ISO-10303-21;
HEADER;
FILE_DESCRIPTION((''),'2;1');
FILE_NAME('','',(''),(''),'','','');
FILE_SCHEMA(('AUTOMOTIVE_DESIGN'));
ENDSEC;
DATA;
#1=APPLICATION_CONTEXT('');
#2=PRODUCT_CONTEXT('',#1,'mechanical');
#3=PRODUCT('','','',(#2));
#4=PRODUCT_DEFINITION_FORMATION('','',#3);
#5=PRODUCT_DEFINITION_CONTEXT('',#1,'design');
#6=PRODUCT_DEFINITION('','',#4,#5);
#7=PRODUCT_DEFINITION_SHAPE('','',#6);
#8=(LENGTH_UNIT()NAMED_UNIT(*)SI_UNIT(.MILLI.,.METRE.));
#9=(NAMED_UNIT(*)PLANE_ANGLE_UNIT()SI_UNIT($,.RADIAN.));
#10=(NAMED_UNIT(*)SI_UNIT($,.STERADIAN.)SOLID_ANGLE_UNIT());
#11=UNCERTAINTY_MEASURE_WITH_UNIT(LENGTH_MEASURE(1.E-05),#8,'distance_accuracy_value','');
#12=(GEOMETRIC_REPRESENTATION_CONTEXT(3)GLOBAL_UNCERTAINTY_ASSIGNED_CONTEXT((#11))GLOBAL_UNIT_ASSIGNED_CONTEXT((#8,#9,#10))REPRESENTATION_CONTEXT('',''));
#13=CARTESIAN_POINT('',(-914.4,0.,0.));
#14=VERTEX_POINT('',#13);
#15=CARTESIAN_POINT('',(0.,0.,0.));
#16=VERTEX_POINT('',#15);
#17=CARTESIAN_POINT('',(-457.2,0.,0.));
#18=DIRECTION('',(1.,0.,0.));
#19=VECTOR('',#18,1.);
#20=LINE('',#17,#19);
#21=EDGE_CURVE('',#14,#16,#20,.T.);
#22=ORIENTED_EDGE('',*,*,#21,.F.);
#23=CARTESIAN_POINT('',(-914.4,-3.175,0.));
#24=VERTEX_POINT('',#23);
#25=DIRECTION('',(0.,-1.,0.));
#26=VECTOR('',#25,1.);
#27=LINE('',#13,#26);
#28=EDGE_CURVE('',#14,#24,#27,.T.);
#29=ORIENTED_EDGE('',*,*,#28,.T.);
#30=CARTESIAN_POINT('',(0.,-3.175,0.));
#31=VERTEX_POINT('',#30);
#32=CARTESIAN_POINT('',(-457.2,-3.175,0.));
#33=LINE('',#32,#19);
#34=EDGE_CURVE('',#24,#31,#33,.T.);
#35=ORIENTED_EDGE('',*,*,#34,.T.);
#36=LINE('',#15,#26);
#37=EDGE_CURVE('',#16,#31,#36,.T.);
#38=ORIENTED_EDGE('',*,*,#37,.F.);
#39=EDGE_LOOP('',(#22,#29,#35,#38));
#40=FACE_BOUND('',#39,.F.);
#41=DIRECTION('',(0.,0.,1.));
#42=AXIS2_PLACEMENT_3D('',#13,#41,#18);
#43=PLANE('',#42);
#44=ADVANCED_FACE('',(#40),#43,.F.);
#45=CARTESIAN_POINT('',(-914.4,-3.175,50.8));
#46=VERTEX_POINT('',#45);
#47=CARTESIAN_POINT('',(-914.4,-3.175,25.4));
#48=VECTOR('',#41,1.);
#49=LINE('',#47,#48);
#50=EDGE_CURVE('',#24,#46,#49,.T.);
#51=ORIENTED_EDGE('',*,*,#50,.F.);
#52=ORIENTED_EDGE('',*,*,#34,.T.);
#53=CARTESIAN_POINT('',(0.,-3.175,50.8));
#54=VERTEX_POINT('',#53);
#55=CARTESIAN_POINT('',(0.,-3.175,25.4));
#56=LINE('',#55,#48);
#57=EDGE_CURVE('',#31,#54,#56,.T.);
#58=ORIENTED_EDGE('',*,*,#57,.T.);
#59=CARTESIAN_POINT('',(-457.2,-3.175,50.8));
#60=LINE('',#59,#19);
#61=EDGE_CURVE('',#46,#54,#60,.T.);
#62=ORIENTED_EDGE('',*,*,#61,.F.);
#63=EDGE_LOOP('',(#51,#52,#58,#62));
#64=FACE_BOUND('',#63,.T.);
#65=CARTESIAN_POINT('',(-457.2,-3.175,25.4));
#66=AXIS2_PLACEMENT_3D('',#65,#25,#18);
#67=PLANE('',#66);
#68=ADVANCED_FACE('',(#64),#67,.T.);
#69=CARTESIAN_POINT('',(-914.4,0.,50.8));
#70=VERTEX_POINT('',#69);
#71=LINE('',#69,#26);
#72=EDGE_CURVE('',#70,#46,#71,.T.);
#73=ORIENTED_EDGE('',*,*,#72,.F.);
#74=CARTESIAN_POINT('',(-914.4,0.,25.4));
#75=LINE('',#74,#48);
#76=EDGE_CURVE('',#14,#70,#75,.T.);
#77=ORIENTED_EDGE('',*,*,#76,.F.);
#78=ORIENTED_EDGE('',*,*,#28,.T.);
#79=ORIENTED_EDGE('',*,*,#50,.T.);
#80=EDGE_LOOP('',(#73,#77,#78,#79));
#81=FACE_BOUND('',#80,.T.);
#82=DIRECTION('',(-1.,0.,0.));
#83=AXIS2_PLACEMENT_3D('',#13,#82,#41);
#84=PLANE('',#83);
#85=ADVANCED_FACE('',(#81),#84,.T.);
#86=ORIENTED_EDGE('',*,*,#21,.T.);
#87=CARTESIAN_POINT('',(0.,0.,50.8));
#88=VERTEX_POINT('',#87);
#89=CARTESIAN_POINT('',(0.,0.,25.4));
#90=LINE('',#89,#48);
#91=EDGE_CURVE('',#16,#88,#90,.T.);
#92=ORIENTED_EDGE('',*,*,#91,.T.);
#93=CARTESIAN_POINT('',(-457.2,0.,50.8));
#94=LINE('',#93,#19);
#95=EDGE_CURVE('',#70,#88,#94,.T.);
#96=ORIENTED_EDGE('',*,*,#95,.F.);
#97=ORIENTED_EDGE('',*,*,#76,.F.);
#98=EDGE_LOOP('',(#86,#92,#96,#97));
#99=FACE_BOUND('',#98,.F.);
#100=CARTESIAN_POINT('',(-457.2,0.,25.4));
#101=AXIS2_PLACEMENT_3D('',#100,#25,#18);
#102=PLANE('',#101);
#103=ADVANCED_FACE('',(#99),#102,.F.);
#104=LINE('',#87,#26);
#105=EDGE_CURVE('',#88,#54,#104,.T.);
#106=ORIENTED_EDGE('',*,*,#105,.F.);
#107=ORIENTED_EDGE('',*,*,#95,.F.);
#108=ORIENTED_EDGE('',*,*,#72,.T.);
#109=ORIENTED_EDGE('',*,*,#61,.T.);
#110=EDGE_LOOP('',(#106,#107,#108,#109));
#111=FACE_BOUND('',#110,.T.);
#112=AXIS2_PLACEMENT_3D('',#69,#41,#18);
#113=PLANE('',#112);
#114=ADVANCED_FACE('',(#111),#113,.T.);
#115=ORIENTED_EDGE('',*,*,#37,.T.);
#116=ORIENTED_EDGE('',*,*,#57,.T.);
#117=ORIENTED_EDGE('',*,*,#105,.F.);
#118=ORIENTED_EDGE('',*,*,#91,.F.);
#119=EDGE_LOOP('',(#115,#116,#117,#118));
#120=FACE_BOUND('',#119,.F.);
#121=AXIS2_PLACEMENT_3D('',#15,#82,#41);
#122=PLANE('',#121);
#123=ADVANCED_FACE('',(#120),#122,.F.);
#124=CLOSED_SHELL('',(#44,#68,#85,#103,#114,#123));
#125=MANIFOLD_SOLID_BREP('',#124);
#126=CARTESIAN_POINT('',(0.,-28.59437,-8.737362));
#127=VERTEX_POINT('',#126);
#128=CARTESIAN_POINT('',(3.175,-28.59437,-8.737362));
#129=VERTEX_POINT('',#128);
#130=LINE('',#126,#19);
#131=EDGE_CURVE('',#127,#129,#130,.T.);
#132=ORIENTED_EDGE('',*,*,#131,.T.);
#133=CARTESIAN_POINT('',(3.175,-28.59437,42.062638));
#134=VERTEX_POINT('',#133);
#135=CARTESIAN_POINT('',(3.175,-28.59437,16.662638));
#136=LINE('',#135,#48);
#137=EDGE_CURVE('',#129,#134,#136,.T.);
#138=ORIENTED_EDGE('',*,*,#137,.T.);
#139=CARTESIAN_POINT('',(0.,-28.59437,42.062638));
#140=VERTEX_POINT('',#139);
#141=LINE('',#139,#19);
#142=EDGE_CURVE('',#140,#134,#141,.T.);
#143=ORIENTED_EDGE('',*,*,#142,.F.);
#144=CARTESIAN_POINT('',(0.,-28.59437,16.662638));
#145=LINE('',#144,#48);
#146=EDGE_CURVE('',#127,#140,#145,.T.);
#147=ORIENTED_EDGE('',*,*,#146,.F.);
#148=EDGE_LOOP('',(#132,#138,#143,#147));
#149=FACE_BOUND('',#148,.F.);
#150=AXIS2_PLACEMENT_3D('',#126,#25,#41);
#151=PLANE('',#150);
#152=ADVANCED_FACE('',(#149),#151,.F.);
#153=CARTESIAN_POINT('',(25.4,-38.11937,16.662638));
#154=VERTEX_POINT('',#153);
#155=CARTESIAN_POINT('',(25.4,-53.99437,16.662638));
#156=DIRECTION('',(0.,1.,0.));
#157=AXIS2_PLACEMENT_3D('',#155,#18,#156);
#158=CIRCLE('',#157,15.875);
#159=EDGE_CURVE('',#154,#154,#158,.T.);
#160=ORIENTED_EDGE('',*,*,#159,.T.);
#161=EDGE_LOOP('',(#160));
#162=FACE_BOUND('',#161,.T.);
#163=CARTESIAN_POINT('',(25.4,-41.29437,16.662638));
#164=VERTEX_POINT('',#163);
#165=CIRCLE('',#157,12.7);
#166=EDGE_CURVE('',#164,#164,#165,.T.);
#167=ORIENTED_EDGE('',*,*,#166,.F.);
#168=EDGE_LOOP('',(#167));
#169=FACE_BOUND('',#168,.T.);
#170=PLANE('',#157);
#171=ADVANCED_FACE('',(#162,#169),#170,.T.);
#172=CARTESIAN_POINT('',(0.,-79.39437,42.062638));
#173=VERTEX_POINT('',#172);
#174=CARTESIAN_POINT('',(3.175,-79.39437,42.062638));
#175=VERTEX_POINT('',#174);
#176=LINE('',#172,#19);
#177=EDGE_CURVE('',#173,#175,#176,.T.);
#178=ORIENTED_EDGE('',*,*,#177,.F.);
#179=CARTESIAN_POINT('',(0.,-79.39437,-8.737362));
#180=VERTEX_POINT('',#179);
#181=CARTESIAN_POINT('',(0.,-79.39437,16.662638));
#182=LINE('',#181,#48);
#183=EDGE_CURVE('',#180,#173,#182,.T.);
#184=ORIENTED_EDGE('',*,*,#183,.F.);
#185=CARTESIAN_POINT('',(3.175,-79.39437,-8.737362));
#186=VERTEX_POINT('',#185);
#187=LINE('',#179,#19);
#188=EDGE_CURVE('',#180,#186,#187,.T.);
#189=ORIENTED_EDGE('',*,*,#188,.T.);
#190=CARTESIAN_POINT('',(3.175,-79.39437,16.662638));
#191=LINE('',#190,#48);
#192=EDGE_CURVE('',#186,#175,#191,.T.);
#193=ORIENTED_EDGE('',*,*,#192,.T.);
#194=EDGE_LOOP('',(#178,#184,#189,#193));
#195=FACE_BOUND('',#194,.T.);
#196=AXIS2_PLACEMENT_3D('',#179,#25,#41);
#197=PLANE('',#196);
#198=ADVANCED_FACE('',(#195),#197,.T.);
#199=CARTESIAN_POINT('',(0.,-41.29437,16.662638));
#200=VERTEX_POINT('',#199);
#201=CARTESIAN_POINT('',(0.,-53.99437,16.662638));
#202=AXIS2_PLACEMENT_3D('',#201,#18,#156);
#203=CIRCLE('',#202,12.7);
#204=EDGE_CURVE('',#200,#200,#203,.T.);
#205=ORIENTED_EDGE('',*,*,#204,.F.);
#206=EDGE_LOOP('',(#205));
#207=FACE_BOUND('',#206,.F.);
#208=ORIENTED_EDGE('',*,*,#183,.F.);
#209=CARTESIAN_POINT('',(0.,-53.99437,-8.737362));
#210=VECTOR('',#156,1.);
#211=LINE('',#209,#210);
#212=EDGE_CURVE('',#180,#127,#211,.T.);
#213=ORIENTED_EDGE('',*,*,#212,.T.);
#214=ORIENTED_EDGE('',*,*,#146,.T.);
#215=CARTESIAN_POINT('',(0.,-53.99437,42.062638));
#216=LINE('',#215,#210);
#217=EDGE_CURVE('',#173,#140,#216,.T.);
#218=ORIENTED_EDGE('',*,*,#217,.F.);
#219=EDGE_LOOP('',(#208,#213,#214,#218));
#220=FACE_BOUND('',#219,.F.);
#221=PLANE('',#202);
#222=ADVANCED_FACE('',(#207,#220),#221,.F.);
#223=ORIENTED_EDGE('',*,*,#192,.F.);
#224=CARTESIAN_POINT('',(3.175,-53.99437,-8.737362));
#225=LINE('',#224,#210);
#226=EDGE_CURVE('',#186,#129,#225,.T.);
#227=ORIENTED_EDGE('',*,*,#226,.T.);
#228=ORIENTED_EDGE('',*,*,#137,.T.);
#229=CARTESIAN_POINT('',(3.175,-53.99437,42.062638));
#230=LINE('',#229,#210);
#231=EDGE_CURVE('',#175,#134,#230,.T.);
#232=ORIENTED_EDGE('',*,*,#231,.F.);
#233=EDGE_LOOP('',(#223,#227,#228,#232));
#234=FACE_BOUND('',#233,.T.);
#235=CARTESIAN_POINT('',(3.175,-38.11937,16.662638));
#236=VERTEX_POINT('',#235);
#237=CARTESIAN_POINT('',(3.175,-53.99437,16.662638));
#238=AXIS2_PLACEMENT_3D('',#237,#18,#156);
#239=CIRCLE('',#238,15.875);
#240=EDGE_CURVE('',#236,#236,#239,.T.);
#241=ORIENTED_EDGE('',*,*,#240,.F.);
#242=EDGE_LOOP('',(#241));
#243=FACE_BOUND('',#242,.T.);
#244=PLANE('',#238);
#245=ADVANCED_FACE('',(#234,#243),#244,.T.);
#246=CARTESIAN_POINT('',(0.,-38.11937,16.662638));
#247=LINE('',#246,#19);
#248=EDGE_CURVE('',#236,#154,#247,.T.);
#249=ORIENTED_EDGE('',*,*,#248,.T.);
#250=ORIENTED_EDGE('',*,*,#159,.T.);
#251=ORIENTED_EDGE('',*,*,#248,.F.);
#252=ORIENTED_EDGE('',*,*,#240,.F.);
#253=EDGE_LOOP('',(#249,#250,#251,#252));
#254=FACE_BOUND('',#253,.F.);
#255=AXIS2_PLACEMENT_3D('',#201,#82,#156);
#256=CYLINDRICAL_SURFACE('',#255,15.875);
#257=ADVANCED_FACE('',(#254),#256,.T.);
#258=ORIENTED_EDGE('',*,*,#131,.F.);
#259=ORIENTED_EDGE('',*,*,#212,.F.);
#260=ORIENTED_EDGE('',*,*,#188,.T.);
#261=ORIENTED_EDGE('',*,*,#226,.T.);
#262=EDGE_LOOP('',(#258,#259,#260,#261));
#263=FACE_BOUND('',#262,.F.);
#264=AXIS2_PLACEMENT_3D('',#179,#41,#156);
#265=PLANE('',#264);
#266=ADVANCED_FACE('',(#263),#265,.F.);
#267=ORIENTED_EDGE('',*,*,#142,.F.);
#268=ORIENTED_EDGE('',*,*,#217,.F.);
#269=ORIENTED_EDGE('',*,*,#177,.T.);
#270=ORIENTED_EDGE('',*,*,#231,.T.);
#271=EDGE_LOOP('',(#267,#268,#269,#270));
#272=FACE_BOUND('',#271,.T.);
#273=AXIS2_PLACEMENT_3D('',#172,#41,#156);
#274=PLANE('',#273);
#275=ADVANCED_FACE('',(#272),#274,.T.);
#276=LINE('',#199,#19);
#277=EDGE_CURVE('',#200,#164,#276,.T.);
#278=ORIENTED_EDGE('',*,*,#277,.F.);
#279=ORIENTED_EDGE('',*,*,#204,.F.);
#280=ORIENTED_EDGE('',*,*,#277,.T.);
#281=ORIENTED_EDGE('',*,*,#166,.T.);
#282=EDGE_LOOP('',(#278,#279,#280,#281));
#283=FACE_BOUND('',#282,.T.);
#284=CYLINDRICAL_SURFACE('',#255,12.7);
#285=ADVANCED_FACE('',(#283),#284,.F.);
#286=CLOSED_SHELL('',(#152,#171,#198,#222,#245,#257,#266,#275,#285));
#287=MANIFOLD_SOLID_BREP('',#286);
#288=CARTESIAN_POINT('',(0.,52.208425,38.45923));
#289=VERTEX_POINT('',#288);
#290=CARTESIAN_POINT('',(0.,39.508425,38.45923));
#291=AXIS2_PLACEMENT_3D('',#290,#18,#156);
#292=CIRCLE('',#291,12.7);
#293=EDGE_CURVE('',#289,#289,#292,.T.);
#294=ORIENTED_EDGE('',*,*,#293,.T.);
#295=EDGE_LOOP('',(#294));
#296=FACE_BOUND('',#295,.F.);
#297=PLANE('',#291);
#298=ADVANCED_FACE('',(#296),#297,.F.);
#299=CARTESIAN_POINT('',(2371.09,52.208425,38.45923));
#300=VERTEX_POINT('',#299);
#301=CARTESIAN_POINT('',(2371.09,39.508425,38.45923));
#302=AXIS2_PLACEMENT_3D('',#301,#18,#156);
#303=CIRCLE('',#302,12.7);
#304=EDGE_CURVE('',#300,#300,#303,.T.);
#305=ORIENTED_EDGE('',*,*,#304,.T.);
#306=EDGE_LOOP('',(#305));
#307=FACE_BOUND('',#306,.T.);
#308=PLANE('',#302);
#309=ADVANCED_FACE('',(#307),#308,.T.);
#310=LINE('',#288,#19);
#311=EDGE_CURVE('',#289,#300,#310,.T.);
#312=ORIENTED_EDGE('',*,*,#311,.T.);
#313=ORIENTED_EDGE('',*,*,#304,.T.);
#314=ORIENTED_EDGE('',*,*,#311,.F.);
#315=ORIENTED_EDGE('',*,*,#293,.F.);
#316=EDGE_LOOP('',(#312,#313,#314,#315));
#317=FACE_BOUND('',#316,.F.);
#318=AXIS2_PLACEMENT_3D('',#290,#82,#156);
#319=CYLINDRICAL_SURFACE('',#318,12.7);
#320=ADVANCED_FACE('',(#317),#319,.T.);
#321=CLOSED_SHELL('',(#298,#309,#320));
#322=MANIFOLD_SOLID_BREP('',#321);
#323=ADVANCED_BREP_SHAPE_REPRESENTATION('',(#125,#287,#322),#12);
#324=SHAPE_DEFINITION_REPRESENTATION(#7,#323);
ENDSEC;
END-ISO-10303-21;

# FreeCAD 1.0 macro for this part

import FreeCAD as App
import Part
import Sketcher
from FreeCAD import Vector
Q = App.Units.Quantity

doc = App.newDocument("Part")
body = doc.addObject("PartDesign::Body", "Body")

# Sketch on XZ plane
sketch1 = doc.addObject("Sketcher::SketchObject", "Sketch")
body.addObject(sketch1)
sketch1.AttachmentSupport = (doc.XZ_Plane, [""])
sketch1.MapMode = "FlatFace"
sketch1.addGeometry([
    Part.LineSegment(Vector(-914, 51, 0), Vector(-914, 0, 0)),
    Part.LineSegment(Vector(-914, 0, 0), Vector(0, 0, 0)),
    Part.LineSegment(Vector(0, 0, 0), Vector(0, 51, 0)),
    Part.LineSegment(Vector(0, 51, 0), Vector(-914, 51, 0)),
], False)
sketch1.addConstraint([
    Sketcher.Constraint("Coincident", 0, 2, 1, 1),
    Sketcher.Constraint("Coincident", 1, 2, 2, 1),
    Sketcher.Constraint("Coincident", 2, 2, 3, 1),
    Sketcher.Constraint("Coincident", 3, 2, 0, 1),
    Sketcher.Constraint("Vertical", 0),
    Sketcher.Constraint("Horizontal", 1),
    Sketcher.Constraint("Vertical", 2),
    Sketcher.Constraint("Horizontal", 3),
    Sketcher.Constraint("Coincident", 1, 2, -1, 1),
    Sketcher.Constraint("DistanceX", 1, 1, 1, 2, Q("36 in")),
    Sketcher.Constraint("DistanceY", 0, 2, 0, 1, Q("2 in")),
])
pad1 = doc.addObject("PartDesign::Pad", "Pad")
body.addObject(pad1)
pad1.Profile = sketch1
pad1.Length = Q("0.125 in")
body2 = doc.addObject("PartDesign::Body", "Body001")

# Sketch on YZ plane
sketch2 = doc.addObject("Sketcher::SketchObject", "Sketch001")
body2.addObject(sketch2)
sketch2.AttachmentSupport = (doc.getObject("YZ_Plane001"), [""])
sketch2.MapMode = "FlatFace"
sketch2.addGeometry([
    Part.LineSegment(Vector(-79, 42, 0), Vector(-79, -9, 0)),  # 0
    Part.LineSegment(Vector(-79, -9, 0), Vector(-29, -9, 0)),  # 1
    Part.LineSegment(Vector(-29, -9, 0), Vector(-29, 42, 0)),  # 2
    Part.LineSegment(Vector(-29, 42, 0), Vector(-79, 42, 0)),  # 3
    Part.Circle(Vector(-54, 17, 0), Vector(0, 0, 1), 16),  # 4
], False)
sketch2.addConstraint([
    Sketcher.Constraint("Coincident", 0, 2, 1, 1),
    Sketcher.Constraint("Coincident", 1, 2, 2, 1),
    Sketcher.Constraint("Coincident", 2, 2, 3, 1),
    Sketcher.Constraint("Coincident", 3, 2, 0, 1),
    Sketcher.Constraint("Vertical", 0),
    Sketcher.Constraint("Horizontal", 1),
    Sketcher.Constraint("Vertical", 2),
    Sketcher.Constraint("Horizontal", 3),
    Sketcher.Constraint("Equal", 3, 0),
    Sketcher.Constraint("Diameter", 4, Q("1.25 in")),
    Sketcher.Constraint("DistanceX", 1, 1, 1, 2, Q("2 in")),
    Sketcher.Constraint("DistanceX", 0, 2, 4, 3, Q("1 in")),
    Sketcher.Constraint("DistanceY", 0, 2, 4, 3, Q("1 in")),
    Sketcher.Constraint("DistanceX", 4, 3, -1, 1, 53.99437),
    Sketcher.Constraint("DistanceY", -1, 1, 4, 3, 16.662638),
])
pad2 = doc.addObject("PartDesign::Pad", "Pad001")
body2.addObject(pad2)
pad2.Profile = sketch2
pad2.Length = Q("0.125 in")

# Sketch on YZ plane
sketch3 = doc.addObject("Sketcher::SketchObject", "Sketch002")
body2.addObject(sketch3)
sketch3.AttachmentSupport = (doc.getObject("YZ_Plane001"), [""])
sketch3.MapMode = "FlatFace"
sketch3.addGeometry([
    Part.Circle(Vector(-54, 17, 0), Vector(0, 0, 1), 16),
    Part.Circle(Vector(-54, 17, 0), Vector(0, 0, 1), 13),
], False)
sketch3.addConstraint([
    Sketcher.Constraint("Coincident", 1, 3, 0, 3),
    Sketcher.Constraint("Diameter", 1, Q("1 in")),
    Sketcher.Constraint("Diameter", 0, Q("1.25 in")),
    Sketcher.Constraint("DistanceX", 0, 3, -1, 1, 53.99437),
    Sketcher.Constraint("DistanceY", -1, 1, 0, 3, 16.662638),
])
pad3 = doc.addObject("PartDesign::Pad", "Pad002")
body2.addObject(pad3)
pad3.Profile = sketch3
pad3.Length = Q("1 in")
body3 = doc.addObject("PartDesign::Body", "Body002")

# Sketch on YZ plane
sketch4 = doc.addObject("Sketcher::SketchObject", "Sketch003")
body3.addObject(sketch4)
sketch4.AttachmentSupport = (doc.getObject("YZ_Plane002"), [""])
sketch4.MapMode = "FlatFace"
sketch4.addGeometry(Part.Circle(Vector(40, 38, 0), Vector(0, 0, 1), 13), False)
sketch4.addConstraint([
    Sketcher.Constraint("Diameter", 0, Q("1 in")),
    Sketcher.Constraint("DistanceY", -1, 1, 0, 3, 38.45923),
    Sketcher.Constraint("DistanceX", -1, 1, 0, 3, 39.508425),
])
pad4 = doc.addObject("PartDesign::Pad", "Pad003")
body3.addObject(pad4)
pad4.Profile = sketch4
pad4.Length = Q("93.35 in")

doc.recompute()
